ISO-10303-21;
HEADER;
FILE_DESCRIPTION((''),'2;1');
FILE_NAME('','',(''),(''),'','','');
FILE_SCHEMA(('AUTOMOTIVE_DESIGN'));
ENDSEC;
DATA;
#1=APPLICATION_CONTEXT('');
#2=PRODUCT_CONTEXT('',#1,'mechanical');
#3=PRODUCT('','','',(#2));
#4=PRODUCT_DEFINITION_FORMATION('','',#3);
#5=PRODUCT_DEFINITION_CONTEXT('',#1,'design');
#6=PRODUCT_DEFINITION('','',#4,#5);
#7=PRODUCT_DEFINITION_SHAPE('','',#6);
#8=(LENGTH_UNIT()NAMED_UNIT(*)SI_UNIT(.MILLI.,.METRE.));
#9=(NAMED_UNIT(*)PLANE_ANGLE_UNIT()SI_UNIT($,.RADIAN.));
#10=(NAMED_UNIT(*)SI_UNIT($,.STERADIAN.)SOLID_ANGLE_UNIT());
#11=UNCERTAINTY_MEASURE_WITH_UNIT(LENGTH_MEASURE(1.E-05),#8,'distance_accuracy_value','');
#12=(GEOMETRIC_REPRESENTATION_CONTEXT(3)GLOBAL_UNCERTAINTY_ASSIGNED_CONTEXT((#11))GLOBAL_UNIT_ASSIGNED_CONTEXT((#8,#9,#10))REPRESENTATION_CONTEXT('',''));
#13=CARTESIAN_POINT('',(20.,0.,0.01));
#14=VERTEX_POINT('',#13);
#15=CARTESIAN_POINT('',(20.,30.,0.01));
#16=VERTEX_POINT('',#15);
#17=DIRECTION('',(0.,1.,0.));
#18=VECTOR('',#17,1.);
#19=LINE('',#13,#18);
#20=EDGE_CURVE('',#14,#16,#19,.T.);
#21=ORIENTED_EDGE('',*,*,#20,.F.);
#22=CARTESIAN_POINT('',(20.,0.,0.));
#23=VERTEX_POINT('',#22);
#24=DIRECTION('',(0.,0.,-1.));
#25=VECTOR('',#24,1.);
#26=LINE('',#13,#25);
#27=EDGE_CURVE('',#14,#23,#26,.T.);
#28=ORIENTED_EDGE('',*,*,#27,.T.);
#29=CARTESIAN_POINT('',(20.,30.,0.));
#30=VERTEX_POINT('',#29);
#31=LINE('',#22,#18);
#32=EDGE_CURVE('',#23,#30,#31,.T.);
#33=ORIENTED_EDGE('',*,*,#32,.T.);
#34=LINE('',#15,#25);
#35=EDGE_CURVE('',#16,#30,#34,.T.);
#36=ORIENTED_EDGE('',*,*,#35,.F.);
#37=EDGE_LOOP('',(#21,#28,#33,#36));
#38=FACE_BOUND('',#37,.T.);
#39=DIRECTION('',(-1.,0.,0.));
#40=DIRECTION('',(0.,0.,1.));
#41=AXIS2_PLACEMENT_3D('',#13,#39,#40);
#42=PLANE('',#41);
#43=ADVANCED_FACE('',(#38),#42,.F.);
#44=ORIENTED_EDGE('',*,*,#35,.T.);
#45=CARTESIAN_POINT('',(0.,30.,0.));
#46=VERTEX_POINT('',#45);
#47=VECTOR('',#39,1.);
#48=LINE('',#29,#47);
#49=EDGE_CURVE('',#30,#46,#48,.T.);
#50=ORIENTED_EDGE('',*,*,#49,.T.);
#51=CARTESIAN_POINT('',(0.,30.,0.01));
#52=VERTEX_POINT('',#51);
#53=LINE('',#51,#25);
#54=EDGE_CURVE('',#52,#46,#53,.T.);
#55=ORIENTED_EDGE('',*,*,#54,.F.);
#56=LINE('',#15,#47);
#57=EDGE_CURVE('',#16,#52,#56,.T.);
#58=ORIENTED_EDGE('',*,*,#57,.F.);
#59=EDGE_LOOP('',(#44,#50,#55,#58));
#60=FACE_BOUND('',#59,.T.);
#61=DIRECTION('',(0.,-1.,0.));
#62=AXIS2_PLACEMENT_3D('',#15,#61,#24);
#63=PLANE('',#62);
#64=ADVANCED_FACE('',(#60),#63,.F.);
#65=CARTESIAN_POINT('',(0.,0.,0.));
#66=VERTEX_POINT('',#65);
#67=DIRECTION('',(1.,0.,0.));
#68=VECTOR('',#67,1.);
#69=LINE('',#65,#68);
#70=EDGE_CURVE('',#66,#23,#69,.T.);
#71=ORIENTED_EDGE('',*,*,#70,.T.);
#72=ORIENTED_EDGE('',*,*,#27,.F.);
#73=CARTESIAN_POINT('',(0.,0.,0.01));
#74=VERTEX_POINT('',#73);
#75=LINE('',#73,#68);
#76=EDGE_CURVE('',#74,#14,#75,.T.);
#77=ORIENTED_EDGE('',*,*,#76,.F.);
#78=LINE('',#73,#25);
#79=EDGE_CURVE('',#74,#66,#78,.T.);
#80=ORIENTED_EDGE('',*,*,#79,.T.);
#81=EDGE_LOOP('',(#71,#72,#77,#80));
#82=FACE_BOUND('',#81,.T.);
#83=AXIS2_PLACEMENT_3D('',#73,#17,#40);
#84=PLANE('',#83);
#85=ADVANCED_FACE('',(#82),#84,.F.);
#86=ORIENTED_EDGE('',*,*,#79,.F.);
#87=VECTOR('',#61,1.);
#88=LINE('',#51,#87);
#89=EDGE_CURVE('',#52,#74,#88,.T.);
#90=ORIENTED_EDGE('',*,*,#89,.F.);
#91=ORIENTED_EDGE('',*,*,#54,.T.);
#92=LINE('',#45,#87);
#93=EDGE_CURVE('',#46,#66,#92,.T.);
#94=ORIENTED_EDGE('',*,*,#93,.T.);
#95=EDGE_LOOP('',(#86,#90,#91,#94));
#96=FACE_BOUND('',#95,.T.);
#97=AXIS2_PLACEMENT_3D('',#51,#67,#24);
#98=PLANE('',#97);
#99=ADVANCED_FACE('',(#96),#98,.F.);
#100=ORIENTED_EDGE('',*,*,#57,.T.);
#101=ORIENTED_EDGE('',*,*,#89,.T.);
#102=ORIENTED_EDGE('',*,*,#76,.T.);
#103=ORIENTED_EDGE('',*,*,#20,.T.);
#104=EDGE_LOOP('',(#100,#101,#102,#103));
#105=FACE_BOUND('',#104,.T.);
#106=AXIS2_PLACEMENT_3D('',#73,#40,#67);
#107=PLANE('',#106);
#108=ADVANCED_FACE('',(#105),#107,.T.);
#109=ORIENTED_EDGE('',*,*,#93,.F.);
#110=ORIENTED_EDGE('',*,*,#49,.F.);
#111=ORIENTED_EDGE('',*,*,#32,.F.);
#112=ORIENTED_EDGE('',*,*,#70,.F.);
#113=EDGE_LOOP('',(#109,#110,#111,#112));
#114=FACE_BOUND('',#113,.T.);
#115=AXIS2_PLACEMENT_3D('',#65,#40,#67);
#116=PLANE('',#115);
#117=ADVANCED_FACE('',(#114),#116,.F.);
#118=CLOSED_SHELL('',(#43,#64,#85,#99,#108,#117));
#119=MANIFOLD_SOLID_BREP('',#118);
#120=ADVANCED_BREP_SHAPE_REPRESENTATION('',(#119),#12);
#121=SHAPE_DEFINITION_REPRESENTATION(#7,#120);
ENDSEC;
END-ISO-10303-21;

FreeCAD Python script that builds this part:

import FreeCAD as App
import Part
import Sketcher
from FreeCAD import Vector

doc = App.newDocument("Part")
body = doc.addObject("PartDesign::Body", "Body")

sketch1 = body.newObject("Sketcher::SketchObject", "Sketch")
sketch1.AttachmentSupport = (doc.getObject("XY_Plane"), [""])
sketch1.MapMode = "FlatFace"
sketch1.addGeometry([
    Part.LineSegment(Vector(0, 30, 0), Vector(0, 0, 0)),
    Part.LineSegment(Vector(0, 0, 0), Vector(20, 0, 0)),
    Part.LineSegment(Vector(20, 0, 0), Vector(20, 30, 0)),
    Part.LineSegment(Vector(20, 30, 0), Vector(0, 30, 0)),
], False)
sketch1.addConstraint([
    Sketcher.Constraint("Coincident", 0, 2, 1, 1),
    Sketcher.Constraint("Coincident", 1, 2, 2, 1),
    Sketcher.Constraint("Coincident", 2, 2, 3, 1),
    Sketcher.Constraint("Coincident", 3, 2, 0, 1),
    Sketcher.Constraint("Vertical", 0),
    Sketcher.Constraint("Horizontal", 1),
    Sketcher.Constraint("Vertical", 2),
    Sketcher.Constraint("Horizontal", 3),
    Sketcher.Constraint("Coincident", 0, 2, -1, 1),
    Sketcher.Constraint("DistanceX", 1, 1, 1, 2, 20.0),
    Sketcher.Constraint("DistanceY", 0, 2, 0, 1, 30.0),
])
pad1 = body.newObject("PartDesign::Pad", "Pad")
pad1.Profile = sketch1
pad1.Length = 0.01

doc.recompute()
